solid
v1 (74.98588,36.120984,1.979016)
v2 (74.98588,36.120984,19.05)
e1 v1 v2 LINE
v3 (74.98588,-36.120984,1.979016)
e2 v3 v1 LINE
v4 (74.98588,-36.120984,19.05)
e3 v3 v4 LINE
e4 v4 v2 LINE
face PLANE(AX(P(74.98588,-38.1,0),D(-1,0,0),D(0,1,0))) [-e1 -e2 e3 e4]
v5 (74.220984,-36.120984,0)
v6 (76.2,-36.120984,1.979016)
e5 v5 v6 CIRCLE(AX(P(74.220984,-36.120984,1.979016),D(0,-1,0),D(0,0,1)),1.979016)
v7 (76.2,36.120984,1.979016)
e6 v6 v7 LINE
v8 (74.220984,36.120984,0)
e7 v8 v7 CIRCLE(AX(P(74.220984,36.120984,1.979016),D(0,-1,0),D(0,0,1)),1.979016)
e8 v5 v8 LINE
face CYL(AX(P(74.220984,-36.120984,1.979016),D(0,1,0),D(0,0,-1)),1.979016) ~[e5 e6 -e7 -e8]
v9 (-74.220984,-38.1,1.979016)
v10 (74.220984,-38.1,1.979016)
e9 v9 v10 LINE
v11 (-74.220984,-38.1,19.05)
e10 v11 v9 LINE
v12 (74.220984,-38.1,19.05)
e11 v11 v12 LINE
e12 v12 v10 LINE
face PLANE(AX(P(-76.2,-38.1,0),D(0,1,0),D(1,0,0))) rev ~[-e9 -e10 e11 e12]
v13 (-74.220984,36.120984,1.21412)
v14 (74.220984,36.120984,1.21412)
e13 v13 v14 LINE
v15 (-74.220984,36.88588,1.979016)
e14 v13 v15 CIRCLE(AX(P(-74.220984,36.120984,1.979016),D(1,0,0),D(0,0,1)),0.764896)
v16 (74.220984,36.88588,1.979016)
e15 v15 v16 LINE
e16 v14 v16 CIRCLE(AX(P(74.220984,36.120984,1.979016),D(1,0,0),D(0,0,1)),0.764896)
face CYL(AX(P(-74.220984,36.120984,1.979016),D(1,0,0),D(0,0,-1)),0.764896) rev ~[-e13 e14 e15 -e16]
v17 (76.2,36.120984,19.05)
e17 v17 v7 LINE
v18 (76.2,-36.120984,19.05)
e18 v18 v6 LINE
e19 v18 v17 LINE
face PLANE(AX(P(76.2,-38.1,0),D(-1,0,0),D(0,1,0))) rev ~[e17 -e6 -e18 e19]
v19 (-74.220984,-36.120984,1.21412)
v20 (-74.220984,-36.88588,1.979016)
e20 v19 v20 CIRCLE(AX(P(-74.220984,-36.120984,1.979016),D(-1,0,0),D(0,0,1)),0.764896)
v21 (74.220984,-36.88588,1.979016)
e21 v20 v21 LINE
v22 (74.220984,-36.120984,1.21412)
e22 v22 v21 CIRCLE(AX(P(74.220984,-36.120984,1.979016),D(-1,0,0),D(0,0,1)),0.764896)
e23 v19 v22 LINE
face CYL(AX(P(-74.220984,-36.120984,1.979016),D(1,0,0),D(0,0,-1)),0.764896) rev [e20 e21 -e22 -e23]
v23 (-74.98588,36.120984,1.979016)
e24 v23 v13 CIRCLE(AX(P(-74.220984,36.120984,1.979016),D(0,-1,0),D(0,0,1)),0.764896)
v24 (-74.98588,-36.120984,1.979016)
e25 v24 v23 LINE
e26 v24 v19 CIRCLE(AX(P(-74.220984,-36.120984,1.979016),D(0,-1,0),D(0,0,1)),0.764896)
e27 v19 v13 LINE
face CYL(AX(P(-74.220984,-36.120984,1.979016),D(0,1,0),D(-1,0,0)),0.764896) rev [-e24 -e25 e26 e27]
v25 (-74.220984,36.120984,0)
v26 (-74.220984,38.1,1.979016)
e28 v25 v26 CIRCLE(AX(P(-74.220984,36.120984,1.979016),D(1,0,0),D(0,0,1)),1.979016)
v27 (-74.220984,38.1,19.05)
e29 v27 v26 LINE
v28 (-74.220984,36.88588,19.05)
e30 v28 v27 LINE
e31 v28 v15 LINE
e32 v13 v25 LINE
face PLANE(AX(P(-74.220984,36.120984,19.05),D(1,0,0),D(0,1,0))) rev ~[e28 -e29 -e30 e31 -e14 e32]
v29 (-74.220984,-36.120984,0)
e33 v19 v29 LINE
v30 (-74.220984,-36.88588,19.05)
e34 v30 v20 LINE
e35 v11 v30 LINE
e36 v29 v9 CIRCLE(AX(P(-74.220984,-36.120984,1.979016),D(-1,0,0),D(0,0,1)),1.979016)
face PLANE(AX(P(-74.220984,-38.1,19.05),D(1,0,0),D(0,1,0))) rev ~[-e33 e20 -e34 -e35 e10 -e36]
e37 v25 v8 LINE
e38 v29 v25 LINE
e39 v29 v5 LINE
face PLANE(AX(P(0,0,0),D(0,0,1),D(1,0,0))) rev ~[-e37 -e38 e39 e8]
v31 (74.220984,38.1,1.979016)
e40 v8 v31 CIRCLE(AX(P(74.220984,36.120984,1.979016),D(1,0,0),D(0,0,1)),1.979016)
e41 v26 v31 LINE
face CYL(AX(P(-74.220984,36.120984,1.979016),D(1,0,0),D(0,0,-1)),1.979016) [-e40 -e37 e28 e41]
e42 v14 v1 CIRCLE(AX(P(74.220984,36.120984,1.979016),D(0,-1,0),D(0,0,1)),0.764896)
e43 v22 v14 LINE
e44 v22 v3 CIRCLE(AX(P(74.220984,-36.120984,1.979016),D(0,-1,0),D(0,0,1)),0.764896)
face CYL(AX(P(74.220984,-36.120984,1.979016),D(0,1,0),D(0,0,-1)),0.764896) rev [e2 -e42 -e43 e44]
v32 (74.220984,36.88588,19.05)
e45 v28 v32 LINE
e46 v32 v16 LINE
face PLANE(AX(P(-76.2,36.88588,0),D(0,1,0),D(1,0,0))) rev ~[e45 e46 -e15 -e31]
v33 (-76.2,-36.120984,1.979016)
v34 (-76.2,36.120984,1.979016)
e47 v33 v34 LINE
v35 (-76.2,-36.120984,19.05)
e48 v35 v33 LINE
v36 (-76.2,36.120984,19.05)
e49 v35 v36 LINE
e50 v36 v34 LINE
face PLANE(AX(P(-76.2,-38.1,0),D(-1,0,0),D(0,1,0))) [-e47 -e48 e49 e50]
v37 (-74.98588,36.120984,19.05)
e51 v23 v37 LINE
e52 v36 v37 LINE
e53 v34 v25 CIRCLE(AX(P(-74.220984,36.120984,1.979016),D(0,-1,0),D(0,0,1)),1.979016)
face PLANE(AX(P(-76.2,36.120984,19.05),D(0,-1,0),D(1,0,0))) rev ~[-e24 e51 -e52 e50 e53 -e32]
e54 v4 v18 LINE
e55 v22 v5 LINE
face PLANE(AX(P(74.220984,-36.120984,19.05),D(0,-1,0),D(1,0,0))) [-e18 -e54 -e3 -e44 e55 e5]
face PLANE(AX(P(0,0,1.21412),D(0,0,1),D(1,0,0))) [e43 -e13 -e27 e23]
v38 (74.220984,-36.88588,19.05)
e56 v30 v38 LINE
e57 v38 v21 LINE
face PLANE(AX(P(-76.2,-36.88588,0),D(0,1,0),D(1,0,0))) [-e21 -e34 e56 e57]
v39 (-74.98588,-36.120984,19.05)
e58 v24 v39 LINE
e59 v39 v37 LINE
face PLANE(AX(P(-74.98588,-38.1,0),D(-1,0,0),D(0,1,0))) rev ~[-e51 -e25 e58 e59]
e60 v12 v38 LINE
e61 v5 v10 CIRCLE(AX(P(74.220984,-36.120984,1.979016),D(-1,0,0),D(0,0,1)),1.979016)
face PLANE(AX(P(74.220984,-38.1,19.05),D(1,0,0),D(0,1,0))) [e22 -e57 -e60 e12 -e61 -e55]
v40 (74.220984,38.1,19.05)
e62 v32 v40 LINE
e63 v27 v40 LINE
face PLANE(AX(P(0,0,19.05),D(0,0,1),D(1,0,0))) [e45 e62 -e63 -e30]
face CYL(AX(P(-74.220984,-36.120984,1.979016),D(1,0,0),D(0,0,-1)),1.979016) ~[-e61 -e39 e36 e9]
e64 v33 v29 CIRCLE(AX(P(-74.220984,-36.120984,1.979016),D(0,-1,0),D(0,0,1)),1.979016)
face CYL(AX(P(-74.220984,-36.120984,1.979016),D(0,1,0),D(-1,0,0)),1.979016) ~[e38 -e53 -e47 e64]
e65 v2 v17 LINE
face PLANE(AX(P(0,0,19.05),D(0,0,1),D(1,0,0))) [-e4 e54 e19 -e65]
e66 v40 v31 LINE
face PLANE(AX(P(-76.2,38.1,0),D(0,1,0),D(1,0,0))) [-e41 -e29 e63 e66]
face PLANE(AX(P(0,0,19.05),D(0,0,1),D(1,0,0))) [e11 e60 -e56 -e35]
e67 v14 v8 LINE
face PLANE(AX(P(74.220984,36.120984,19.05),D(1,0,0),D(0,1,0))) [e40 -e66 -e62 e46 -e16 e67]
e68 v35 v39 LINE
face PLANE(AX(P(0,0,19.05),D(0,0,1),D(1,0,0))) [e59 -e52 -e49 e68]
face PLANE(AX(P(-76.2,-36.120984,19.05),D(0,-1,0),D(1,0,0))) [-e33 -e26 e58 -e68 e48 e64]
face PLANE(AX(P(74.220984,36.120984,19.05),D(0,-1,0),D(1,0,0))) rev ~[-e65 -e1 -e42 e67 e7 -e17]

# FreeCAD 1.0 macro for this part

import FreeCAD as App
import Part
import Sketcher
Q = App.Units.Quantity


def edges_at(feature, points):
    """Names of the edges that pass closest to the given points."""
    edges = feature.Shape.Edges
    near = lambda p: min(range(len(edges)), key=lambda i: edges[i].distToShape(Part.Vertex(*p))[0])
    return sorted({f"Edge{near(p) + 1}" for p in points})


def faces_at(feature, points):
    """Names of the faces that lie closest to the given points."""
    faces = feature.Shape.Faces
    near = lambda p: min(range(len(faces)), key=lambda i: faces[i].distToShape(Part.Vertex(*p))[0])
    return sorted({f"Face{near(p) + 1}" for p in points})


def add_polygon(sketch, points):
    """Adds a closed chain of lines whose ends are joined by coincident constraints."""
    first, n = sketch.GeometryCount, len(points)
    for a, b in zip(points, points[1:] + points[:1]):
        sketch.addGeometry(Part.LineSegment(App.Vector(*a, 0), App.Vector(*b, 0)), False)
    for i in range(n):
        sketch.addConstraint(Sketcher.Constraint("Coincident", first + i, 2, first + (i + 1) % n, 1))

doc = App.newDocument("Part")
body = doc.addObject("PartDesign::Body", "Body")

sketch1 = body.newObject("Sketcher::SketchObject", "Sketch")
sketch1.AttachmentSupport = (doc.getObject("XY_Plane"), [""])
sketch1.MapMode = "FlatFace"
add_polygon(sketch1, [(-76, 38), (-76, -38), (76, -38), (76, 38)])
sketch1.addConstraint(Sketcher.Constraint("Vertical", 0))
sketch1.addConstraint(Sketcher.Constraint("Horizontal", 1))
sketch1.addConstraint(Sketcher.Constraint("Vertical", 2))
sketch1.addConstraint(Sketcher.Constraint("Horizontal", 3))
sketch1.addConstraint(Sketcher.Constraint("Symmetric", 0, 2, 2, 2, -1, 1))
sketch1.addConstraint(Sketcher.Constraint("DistanceX", 1, 1, 1, 2, Q("6 in")))
sketch1.addConstraint(Sketcher.Constraint("DistanceY", 0, 2, 0, 1, Q("3 in")))
pad1 = body.newObject("PartDesign::Pad", "Pad")
pad1.Profile = sketch1
pad1.Length = Q("0.75 in")
doc.recompute()

thickness = body.newObject("PartDesign::Thickness", "Thickness")
thickness.Base = (pad1, faces_at(pad1, [(0, 0, 19.05)]))
thickness.Value = Q("0.0478 in")
thickness.Reversed = True
thickness.Join = "Arc"

sketch2 = body.newObject("Sketcher::SketchObject", "Sketch001")
sketch2.AttachmentSupport = (doc.getObject("XY_Plane"), [""])
sketch2.MapMode = "FlatFace"
sketch2.AttachmentOffset = App.Placement(App.Vector(0, 0, 0.75 * 25.4), App.Rotation())
add_polygon(sketch2, [(-76.2, -36.1), (-76.2, -38.1), (-74.2, -38.1), (-74.2, -36.1)])
add_polygon(sketch2, [(-76.2, 38.1), (-76.2, 36.1), (-74.2, 36.1), (-74.2, 38.1)])
add_polygon(sketch2, [(74.2, -36.1), (74.2, -38.1), (76.2, -38.1), (76.2, -36.1)])
add_polygon(sketch2, [(74.2, 38.1), (74.2, 36.1), (76.2, 36.1), (76.2, 38.1)])
sketch2.addConstraint(Sketcher.Constraint("Vertical", 0))
sketch2.addConstraint(Sketcher.Constraint("Horizontal", 1))
sketch2.addConstraint(Sketcher.Constraint("Vertical", 2))
sketch2.addConstraint(Sketcher.Constraint("Horizontal", 3))
sketch2.addConstraint(Sketcher.Constraint("Vertical", 4))
sketch2.addConstraint(Sketcher.Constraint("Horizontal", 5))
sketch2.addConstraint(Sketcher.Constraint("Vertical", 6))
sketch2.addConstraint(Sketcher.Constraint("Horizontal", 7))
sketch2.addConstraint(Sketcher.Constraint("Vertical", 8))
sketch2.addConstraint(Sketcher.Constraint("Horizontal", 9))
sketch2.addConstraint(Sketcher.Constraint("Vertical", 10))
sketch2.addConstraint(Sketcher.Constraint("Horizontal", 11))
sketch2.addConstraint(Sketcher.Constraint("Vertical", 12))
sketch2.addConstraint(Sketcher.Constraint("Horizontal", 13))
sketch2.addConstraint(Sketcher.Constraint("Vertical", 14))
sketch2.addConstraint(Sketcher.Constraint("Horizontal", 15))
sketch2.addConstraint(Sketcher.Constraint("Symmetric", 6, 2, 8, 2, -1, 1))
sketch2.addConstraint(Sketcher.Constraint("Symmetric", 4, 2, 10, 2, -1, 1))
sketch2.addConstraint(Sketcher.Constraint("Symmetric", 2, 2, 12, 2, -1, 1))
sketch2.addConstraint(Sketcher.Constraint("Symmetric", 0, 2, 14, 2, -1, 1))
sketch2.addConstraint(Sketcher.Constraint("Symmetric", 1, 2, 8, 2, -2))
sketch2.addConstraint(Sketcher.Constraint("Symmetric", 3, 2, 10, 2, -2))
sketch2.addConstraint(Sketcher.Constraint("Equal", 15, 0))
sketch2.addConstraint(Sketcher.Constraint("DistanceX", 0, 2, -1, 1, Q("3 in")))
sketch2.addConstraint(Sketcher.Constraint("DistanceY", 1, 2, 6, 2, Q("3 in")))
sketch2.addConstraint(Sketcher.Constraint("DistanceX", 1, 1, 1, 2, 1.979016))
pocket1 = body.newObject("PartDesign::Pocket", "Pocket")
pocket1.Profile = sketch2
pocket1.Type = "ThroughAll"
doc.recompute()

fillet = body.newObject("PartDesign::Fillet", "Fillet")
fillet.Base = (pocket1, edges_at(pocket1, [
    (-74.986, 0, 1.214),
    (0, 36.886, 1.214),
    (0, -36.886, 1.214),
    (74.986, 0, 1.214),
]))
fillet.Radius = 0.764896
doc.recompute()

fillet2 = body.newObject("PartDesign::Fillet", "Fillet001")
fillet2.Base = (fillet, edges_at(fillet, [
    (0, 38.1, 0),
    (-76.2, 0, 0),
    (76.2, 0, 0),
    (0, -38.1, 0),
]))
fillet2.Radius = 1.979016

doc.recompute()
